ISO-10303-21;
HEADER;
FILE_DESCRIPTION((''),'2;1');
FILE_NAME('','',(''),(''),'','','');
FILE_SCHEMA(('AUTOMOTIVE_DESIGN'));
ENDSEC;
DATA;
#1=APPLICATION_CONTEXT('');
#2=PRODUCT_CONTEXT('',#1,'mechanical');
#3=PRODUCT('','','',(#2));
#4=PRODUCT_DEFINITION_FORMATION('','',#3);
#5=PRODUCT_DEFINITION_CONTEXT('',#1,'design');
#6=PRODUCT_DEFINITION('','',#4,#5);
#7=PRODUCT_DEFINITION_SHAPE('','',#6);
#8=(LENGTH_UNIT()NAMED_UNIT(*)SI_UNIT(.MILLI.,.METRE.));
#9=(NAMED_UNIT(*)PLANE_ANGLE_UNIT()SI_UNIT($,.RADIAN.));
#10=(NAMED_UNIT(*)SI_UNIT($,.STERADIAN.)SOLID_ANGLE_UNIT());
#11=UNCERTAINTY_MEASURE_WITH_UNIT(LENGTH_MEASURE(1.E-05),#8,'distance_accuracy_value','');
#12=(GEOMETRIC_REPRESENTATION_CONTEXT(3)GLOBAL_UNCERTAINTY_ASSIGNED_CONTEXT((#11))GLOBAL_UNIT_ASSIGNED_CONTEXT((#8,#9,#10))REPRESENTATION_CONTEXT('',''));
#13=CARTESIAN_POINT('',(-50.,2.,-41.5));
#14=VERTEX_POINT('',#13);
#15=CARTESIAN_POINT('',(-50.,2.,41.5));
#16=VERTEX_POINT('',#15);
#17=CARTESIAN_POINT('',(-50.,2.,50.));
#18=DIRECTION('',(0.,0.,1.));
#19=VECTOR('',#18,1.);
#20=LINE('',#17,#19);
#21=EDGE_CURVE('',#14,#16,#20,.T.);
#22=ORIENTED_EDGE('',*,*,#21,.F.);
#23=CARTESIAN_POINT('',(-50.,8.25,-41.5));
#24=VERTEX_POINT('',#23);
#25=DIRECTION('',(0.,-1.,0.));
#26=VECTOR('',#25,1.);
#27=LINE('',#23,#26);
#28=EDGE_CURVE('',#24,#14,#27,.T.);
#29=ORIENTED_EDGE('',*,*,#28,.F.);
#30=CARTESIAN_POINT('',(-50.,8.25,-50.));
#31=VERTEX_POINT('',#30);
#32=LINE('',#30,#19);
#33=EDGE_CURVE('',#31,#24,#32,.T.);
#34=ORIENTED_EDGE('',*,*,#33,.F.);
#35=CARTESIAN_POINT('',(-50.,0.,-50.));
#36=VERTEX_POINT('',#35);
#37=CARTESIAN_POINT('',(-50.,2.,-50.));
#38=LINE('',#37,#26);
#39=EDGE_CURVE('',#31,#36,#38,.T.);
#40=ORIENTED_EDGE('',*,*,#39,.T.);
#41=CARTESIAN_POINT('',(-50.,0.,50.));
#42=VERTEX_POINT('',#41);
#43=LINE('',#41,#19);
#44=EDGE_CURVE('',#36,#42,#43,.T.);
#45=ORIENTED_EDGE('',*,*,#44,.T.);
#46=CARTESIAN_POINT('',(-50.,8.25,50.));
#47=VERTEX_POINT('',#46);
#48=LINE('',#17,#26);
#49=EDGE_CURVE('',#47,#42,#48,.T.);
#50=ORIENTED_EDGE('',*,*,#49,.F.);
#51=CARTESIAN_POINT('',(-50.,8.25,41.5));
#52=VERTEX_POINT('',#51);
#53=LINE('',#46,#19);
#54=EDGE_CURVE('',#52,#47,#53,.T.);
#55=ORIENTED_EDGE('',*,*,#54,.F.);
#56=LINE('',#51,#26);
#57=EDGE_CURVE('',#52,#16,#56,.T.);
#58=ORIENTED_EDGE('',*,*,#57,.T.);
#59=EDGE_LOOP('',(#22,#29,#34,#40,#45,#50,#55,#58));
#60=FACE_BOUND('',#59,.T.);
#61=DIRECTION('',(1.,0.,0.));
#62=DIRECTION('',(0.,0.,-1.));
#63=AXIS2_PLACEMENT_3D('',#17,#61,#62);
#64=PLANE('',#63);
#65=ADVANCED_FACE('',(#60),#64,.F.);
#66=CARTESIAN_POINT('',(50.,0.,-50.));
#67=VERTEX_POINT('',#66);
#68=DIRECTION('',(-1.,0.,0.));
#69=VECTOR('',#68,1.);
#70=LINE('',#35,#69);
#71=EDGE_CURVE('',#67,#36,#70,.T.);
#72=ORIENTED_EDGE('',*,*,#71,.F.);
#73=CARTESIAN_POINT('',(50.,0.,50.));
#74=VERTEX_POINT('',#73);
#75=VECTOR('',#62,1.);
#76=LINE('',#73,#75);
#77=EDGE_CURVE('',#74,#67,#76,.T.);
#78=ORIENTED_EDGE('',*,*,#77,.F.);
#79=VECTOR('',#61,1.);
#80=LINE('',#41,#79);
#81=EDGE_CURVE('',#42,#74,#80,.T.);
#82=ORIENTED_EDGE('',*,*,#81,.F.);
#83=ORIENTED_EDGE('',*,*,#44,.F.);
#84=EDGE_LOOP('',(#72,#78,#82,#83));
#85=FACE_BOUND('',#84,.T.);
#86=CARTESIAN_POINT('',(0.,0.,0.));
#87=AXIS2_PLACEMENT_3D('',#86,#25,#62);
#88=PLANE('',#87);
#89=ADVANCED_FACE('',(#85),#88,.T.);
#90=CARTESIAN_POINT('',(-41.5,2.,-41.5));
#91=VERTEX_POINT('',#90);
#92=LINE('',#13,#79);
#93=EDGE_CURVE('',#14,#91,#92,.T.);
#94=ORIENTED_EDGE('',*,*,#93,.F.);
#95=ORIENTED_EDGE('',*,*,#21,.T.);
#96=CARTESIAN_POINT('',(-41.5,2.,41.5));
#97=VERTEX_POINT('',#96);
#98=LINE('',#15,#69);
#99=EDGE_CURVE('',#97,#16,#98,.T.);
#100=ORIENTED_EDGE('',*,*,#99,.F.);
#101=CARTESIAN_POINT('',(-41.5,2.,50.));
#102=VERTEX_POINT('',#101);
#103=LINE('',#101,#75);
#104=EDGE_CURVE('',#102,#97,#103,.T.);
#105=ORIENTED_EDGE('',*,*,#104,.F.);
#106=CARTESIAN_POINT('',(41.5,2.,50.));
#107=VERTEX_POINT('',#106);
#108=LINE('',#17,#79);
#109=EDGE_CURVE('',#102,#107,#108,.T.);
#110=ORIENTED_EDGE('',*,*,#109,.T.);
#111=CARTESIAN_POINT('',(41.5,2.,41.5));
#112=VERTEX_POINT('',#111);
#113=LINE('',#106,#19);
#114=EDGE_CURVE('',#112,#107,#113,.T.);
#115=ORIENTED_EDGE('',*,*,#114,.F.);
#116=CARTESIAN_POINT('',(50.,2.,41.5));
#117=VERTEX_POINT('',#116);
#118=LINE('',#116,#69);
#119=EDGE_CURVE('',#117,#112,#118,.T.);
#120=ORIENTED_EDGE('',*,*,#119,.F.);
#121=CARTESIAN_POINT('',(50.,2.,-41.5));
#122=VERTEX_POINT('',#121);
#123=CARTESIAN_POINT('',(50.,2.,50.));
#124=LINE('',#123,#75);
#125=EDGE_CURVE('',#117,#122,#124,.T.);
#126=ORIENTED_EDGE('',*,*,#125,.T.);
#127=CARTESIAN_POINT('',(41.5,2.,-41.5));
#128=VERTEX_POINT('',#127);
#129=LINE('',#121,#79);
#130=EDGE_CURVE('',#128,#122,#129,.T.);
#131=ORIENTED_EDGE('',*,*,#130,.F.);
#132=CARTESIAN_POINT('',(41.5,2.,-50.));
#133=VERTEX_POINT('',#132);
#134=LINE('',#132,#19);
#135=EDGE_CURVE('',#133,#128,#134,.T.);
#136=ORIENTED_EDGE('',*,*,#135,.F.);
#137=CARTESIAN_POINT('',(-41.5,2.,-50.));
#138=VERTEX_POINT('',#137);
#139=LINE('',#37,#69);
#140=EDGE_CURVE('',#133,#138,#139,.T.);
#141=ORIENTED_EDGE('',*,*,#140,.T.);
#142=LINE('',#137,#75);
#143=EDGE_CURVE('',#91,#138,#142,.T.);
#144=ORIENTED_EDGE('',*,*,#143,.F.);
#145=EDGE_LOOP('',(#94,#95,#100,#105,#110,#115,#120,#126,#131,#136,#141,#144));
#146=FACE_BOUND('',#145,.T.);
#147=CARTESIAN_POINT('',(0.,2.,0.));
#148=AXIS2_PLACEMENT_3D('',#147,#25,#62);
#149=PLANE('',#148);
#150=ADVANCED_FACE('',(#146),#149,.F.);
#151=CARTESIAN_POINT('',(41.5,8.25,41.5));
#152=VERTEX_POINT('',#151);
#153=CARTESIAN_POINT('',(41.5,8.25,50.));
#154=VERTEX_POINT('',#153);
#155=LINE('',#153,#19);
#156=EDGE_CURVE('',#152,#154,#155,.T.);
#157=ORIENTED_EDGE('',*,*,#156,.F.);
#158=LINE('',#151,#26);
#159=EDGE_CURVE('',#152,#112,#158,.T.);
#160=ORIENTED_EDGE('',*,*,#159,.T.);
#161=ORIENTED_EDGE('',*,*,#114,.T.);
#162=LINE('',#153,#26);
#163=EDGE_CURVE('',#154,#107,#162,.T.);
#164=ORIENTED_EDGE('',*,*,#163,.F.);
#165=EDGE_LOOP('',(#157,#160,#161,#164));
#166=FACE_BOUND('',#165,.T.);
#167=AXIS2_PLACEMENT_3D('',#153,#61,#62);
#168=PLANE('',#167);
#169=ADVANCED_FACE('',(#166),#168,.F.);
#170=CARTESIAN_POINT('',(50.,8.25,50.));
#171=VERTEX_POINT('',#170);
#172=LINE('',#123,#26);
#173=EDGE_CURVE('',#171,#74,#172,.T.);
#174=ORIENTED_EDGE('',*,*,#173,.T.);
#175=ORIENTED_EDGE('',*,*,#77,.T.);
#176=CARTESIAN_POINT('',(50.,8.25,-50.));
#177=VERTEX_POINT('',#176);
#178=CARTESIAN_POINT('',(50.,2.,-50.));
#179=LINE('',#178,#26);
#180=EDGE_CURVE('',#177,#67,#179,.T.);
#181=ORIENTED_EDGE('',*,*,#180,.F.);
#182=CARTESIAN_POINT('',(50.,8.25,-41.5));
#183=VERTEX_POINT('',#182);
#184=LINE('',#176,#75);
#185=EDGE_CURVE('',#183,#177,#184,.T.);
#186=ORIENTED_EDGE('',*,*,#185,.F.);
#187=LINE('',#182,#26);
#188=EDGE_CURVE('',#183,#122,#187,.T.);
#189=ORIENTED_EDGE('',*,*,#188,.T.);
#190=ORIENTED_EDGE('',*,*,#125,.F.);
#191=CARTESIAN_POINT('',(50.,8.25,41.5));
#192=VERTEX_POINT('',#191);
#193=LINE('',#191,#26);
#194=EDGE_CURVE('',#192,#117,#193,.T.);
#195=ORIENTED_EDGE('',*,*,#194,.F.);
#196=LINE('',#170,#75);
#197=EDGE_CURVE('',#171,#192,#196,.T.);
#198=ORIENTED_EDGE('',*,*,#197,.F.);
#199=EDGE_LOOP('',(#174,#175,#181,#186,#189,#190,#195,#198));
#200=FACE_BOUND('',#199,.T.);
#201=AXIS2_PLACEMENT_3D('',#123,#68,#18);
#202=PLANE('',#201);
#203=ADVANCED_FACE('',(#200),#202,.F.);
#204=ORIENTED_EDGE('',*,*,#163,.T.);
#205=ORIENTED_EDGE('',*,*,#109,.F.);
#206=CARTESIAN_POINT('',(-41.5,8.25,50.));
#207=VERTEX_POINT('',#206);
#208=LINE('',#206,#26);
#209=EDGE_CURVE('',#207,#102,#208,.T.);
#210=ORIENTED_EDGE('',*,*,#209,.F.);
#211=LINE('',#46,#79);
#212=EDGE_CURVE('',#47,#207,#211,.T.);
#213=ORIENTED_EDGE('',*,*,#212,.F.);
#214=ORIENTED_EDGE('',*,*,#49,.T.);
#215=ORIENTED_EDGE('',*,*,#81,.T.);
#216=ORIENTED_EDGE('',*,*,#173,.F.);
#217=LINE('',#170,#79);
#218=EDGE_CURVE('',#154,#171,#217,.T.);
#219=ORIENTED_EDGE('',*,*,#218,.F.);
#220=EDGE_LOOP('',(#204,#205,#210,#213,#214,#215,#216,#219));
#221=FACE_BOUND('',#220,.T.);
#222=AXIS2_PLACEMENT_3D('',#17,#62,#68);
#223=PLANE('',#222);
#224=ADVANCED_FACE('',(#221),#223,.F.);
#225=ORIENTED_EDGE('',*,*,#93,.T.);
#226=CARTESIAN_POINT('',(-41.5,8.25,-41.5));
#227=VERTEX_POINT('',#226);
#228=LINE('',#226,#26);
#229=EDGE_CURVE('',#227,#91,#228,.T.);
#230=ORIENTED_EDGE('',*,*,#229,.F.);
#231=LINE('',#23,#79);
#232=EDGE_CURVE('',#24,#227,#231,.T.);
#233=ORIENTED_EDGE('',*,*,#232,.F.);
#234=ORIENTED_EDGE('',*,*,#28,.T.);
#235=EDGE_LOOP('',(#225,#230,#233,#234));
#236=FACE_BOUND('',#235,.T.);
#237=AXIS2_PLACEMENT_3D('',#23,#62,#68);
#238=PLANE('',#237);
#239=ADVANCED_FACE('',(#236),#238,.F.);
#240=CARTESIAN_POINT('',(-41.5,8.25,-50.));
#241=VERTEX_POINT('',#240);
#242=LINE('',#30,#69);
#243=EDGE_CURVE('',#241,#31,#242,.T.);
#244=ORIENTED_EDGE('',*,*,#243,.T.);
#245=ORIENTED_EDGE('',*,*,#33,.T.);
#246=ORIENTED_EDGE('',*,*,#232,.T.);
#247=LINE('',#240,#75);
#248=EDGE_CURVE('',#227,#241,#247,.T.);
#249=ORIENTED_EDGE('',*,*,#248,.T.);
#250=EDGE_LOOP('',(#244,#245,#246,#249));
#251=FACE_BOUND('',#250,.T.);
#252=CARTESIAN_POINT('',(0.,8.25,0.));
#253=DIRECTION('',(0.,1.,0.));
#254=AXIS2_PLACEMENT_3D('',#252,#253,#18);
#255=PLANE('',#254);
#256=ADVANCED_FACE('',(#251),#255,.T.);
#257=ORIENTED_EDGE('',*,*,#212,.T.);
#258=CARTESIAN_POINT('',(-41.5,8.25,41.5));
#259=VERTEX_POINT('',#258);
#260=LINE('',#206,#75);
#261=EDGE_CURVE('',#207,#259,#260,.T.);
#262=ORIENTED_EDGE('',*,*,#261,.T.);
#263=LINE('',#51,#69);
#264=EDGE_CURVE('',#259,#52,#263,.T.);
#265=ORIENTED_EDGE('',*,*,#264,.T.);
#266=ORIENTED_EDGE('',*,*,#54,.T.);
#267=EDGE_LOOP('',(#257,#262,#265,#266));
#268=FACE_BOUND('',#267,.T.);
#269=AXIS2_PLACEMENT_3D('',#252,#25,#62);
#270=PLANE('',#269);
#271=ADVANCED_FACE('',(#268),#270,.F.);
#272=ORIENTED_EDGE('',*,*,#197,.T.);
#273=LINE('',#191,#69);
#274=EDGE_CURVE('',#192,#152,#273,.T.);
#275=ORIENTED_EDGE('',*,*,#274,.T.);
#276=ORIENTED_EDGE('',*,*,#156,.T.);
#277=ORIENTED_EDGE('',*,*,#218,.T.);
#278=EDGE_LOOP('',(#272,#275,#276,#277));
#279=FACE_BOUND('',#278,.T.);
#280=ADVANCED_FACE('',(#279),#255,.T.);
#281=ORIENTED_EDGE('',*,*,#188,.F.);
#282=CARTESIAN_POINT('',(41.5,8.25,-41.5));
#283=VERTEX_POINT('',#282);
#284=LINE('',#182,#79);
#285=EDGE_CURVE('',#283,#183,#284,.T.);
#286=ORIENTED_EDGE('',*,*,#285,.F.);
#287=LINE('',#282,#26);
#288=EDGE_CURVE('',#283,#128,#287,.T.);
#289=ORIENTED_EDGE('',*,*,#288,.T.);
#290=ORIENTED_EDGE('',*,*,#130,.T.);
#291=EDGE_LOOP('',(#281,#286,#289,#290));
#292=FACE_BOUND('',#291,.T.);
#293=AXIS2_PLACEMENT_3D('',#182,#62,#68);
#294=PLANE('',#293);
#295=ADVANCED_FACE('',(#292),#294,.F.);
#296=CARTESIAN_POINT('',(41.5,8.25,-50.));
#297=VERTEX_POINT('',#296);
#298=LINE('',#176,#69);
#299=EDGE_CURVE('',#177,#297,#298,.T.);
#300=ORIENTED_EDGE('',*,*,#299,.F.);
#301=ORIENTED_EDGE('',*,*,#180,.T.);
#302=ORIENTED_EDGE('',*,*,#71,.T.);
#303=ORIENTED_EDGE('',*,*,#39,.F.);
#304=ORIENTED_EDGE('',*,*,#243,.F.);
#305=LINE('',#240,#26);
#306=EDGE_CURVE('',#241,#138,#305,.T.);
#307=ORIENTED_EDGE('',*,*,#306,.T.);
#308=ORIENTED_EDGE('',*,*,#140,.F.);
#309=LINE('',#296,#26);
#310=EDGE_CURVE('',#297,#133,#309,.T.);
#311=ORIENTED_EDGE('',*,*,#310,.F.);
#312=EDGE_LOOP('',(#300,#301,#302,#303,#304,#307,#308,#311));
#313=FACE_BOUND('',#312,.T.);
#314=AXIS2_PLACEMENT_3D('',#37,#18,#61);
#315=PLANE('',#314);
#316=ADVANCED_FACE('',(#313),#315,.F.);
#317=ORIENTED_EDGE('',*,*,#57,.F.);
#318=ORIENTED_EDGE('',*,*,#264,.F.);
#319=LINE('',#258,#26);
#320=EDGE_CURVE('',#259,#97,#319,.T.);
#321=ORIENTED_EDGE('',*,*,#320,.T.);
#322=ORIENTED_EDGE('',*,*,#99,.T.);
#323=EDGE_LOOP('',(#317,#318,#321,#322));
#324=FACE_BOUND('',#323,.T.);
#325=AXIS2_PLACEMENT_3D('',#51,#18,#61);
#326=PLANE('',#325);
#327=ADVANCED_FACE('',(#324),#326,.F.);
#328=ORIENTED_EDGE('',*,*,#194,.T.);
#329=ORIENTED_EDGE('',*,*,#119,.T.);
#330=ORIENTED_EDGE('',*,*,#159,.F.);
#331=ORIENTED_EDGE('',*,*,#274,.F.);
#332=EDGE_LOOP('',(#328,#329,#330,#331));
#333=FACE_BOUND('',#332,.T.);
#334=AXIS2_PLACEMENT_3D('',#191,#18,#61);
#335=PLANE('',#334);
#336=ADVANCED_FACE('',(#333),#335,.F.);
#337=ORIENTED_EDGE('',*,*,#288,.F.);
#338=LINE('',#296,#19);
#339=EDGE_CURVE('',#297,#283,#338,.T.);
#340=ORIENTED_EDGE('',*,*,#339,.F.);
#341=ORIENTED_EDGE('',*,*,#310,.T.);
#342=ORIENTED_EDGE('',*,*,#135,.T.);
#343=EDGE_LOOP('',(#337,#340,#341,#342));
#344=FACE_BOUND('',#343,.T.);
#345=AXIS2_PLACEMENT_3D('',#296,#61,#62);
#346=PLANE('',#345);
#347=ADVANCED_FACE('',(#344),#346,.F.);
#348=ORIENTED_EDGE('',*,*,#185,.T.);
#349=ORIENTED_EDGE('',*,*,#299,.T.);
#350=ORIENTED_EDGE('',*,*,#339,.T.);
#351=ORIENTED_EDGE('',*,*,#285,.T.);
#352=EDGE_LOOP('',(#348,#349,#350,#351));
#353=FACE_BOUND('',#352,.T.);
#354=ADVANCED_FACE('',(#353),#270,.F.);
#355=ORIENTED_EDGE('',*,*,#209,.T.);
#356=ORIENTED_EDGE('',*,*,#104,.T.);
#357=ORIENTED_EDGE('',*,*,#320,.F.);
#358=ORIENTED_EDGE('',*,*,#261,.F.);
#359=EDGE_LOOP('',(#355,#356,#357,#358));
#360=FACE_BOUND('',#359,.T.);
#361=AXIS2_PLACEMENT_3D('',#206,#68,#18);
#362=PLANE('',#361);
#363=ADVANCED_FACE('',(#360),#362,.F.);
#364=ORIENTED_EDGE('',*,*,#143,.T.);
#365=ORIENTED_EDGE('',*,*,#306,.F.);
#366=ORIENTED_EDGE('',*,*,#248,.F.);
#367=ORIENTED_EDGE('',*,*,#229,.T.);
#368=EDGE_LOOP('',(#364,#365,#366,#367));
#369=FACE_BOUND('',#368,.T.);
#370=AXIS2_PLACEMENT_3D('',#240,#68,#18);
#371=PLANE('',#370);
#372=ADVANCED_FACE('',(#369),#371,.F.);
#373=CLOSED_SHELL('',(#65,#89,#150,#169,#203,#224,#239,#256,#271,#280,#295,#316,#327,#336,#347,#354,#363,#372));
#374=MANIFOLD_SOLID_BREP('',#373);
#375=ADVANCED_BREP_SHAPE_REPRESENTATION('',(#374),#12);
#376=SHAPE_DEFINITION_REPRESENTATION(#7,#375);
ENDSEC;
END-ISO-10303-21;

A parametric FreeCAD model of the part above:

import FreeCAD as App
import Part
import Sketcher

doc = App.newDocument("Part")
params = doc.addObject("Spreadsheet::Sheet", "Params")
for row, (alias, value) in enumerate([
    ("sketch1_width", "100 mm"),
    ("pad1_length", "2 mm"),
    ("sketch2_width", "8.5 mm"),
    ("pad2_length", "6.25 mm"),
], start=1):
    params.set(f"A{row}", alias)
    params.set(f"B{row}", "=" + value)
    params.setAlias(f"B{row}", alias)

body = doc.addObject("PartDesign::Body", "Body")

# Sketch on XZ plane
sketch1 = body.newObject("Sketcher::SketchObject", "Sketch")
sketch1.AttachmentSupport = (doc.getObject("XZ_Plane"), [""])
sketch1.MapMode = "FlatFace"
sketch1.addGeometry(Part.LineSegment(App.Vector(-50, -50, 0), App.Vector(-50, 50, 0)), False)
sketch1.addGeometry(Part.LineSegment(App.Vector(-50, 50, 0), App.Vector(50, 50, 0)), False)
sketch1.addGeometry(Part.LineSegment(App.Vector(50, 50, 0), App.Vector(50, -50, 0)), False)
sketch1.addGeometry(Part.LineSegment(App.Vector(50, -50, 0), App.Vector(-50, -50, 0)), False)
sketch1.addConstraint(Sketcher.Constraint("Coincident", 0, 2, 1, 1))
sketch1.addConstraint(Sketcher.Constraint("Coincident", 1, 2, 2, 1))
sketch1.addConstraint(Sketcher.Constraint("Coincident", 2, 2, 3, 1))
sketch1.addConstraint(Sketcher.Constraint("Coincident", 3, 2, 0, 1))
sketch1.addConstraint(Sketcher.Constraint("Vertical", 0))
sketch1.addConstraint(Sketcher.Constraint("Horizontal", 1))
sketch1.addConstraint(Sketcher.Constraint("Vertical", 2))
sketch1.addConstraint(Sketcher.Constraint("Horizontal", 3))
sketch1.addConstraint(Sketcher.Constraint("Symmetric", 0, 2, 2, 2, -1, 1))
sketch1.addConstraint(Sketcher.Constraint("Equal", 3, 0))
sketch1.addConstraint(Sketcher.Constraint("DistanceX", 1, 1, 1, 2, 100.0))
sketch1.setExpression("Constraints[10]", "Params.sketch1_width")
pad1 = body.newObject("PartDesign::Pad", "Pad")
pad1.Profile = sketch1
pad1.setExpression("Length", "Params.pad1_length")
pad1.Reversed = True

# Sketch on XZ plane
sketch2 = body.newObject("Sketcher::SketchObject", "Sketch001")
sketch2.AttachmentSupport = (doc.getObject("XZ_Plane"), [""])
sketch2.MapMode = "FlatFace"
sketch2.AttachmentOffset = App.Placement(App.Vector(0, 0, -2), App.Rotation())
sketch2.addGeometry(Part.LineSegment(App.Vector(42, 42, 0), App.Vector(42, 50, 0)), False)
sketch2.addGeometry(Part.LineSegment(App.Vector(42, 50, 0), App.Vector(50, 50, 0)), False)
sketch2.addGeometry(Part.LineSegment(App.Vector(50, 50, 0), App.Vector(50, 42, 0)), False)
sketch2.addGeometry(Part.LineSegment(App.Vector(50, 42, 0), App.Vector(42, 42, 0)), False)
sketch2.addGeometry(Part.LineSegment(App.Vector(-50, 42, 0), App.Vector(-50, 50, 0)), False)
sketch2.addGeometry(Part.LineSegment(App.Vector(-50, 50, 0), App.Vector(-42, 50, 0)), False)
sketch2.addGeometry(Part.LineSegment(App.Vector(-42, 50, 0), App.Vector(-42, 42, 0)), False)
sketch2.addGeometry(Part.LineSegment(App.Vector(-42, 42, 0), App.Vector(-50, 42, 0)), False)
sketch2.addGeometry(Part.LineSegment(App.Vector(42, -50, 0), App.Vector(42, -42, 0)), False)
sketch2.addGeometry(Part.LineSegment(App.Vector(42, -42, 0), App.Vector(50, -42, 0)), False)
sketch2.addGeometry(Part.LineSegment(App.Vector(50, -42, 0), App.Vector(50, -50, 0)), False)
sketch2.addGeometry(Part.LineSegment(App.Vector(50, -50, 0), App.Vector(42, -50, 0)), False)
sketch2.addGeometry(Part.LineSegment(App.Vector(-50, -50, 0), App.Vector(-50, -42, 0)), False)
sketch2.addGeometry(Part.LineSegment(App.Vector(-50, -42, 0), App.Vector(-42, -42, 0)), False)
sketch2.addGeometry(Part.LineSegment(App.Vector(-42, -42, 0), App.Vector(-42, -50, 0)), False)
sketch2.addGeometry(Part.LineSegment(App.Vector(-42, -50, 0), App.Vector(-50, -50, 0)), False)
sketch2.addConstraint(Sketcher.Constraint("Coincident", 0, 2, 1, 1))
sketch2.addConstraint(Sketcher.Constraint("Coincident", 1, 2, 2, 1))
sketch2.addConstraint(Sketcher.Constraint("Coincident", 2, 2, 3, 1))
sketch2.addConstraint(Sketcher.Constraint("Coincident", 3, 2, 0, 1))
sketch2.addConstraint(Sketcher.Constraint("Coincident", 4, 2, 5, 1))
sketch2.addConstraint(Sketcher.Constraint("Coincident", 5, 2, 6, 1))
sketch2.addConstraint(Sketcher.Constraint("Coincident", 6, 2, 7, 1))
sketch2.addConstraint(Sketcher.Constraint("Coincident", 7, 2, 4, 1))
sketch2.addConstraint(Sketcher.Constraint("Coincident", 8, 2, 9, 1))
sketch2.addConstraint(Sketcher.Constraint("Coincident", 9, 2, 10, 1))
sketch2.addConstraint(Sketcher.Constraint("Coincident", 10, 2, 11, 1))
sketch2.addConstraint(Sketcher.Constraint("Coincident", 11, 2, 8, 1))
sketch2.addConstraint(Sketcher.Constraint("Coincident", 12, 2, 13, 1))
sketch2.addConstraint(Sketcher.Constraint("Coincident", 13, 2, 14, 1))
sketch2.addConstraint(Sketcher.Constraint("Coincident", 14, 2, 15, 1))
sketch2.addConstraint(Sketcher.Constraint("Coincident", 15, 2, 12, 1))
sketch2.addConstraint(Sketcher.Constraint("Vertical", 0))
sketch2.addConstraint(Sketcher.Constraint("Horizontal", 1))
sketch2.addConstraint(Sketcher.Constraint("Vertical", 2))
sketch2.addConstraint(Sketcher.Constraint("Horizontal", 3))
sketch2.addConstraint(Sketcher.Constraint("Vertical", 4))
sketch2.addConstraint(Sketcher.Constraint("Horizontal", 5))
sketch2.addConstraint(Sketcher.Constraint("Vertical", 6))
sketch2.addConstraint(Sketcher.Constraint("Horizontal", 7))
sketch2.addConstraint(Sketcher.Constraint("Vertical", 8))
sketch2.addConstraint(Sketcher.Constraint("Horizontal", 9))
sketch2.addConstraint(Sketcher.Constraint("Vertical", 10))
sketch2.addConstraint(Sketcher.Constraint("Horizontal", 11))
sketch2.addConstraint(Sketcher.Constraint("Vertical", 12))
sketch2.addConstraint(Sketcher.Constraint("Horizontal", 13))
sketch2.addConstraint(Sketcher.Constraint("Vertical", 14))
sketch2.addConstraint(Sketcher.Constraint("Horizontal", 15))
sketch2.addConstraint(Sketcher.Constraint("Symmetric", 6, 2, 8, 2, -1, 1))
sketch2.addConstraint(Sketcher.Constraint("Symmetric", 4, 2, 10, 2, -1, 1))
sketch2.addConstraint(Sketcher.Constraint("Symmetric", 2, 2, 12, 2, -1, 1))
sketch2.addConstraint(Sketcher.Constraint("Symmetric", 0, 2, 14, 2, -1, 1))
sketch2.addConstraint(Sketcher.Constraint("Symmetric", 1, 2, 4, 2, -2))
sketch2.addConstraint(Sketcher.Constraint("Symmetric", 3, 2, 6, 2, -2))
sketch2.addConstraint(Sketcher.Constraint("Equal", 15, 0))
sketch2.addConstraint(Sketcher.Constraint("DistanceX", 1, 1, 1, 2, 8.5))
sketch2.addConstraint(Sketcher.Constraint("DistanceY", -1, 1, 0, 2, 50.0))
sketch2.addConstraint(Sketcher.Constraint("DistanceX", -1, 1, 1, 2, 50.0))
sketch2.setExpression("Constraints[39]", "Params.sketch2_width")
pad2 = body.newObject("PartDesign::Pad", "Pad001")
pad2.Profile = sketch2
pad2.setExpression("Length", "Params.pad2_length")
pad2.Reversed = True

doc.recompute()
